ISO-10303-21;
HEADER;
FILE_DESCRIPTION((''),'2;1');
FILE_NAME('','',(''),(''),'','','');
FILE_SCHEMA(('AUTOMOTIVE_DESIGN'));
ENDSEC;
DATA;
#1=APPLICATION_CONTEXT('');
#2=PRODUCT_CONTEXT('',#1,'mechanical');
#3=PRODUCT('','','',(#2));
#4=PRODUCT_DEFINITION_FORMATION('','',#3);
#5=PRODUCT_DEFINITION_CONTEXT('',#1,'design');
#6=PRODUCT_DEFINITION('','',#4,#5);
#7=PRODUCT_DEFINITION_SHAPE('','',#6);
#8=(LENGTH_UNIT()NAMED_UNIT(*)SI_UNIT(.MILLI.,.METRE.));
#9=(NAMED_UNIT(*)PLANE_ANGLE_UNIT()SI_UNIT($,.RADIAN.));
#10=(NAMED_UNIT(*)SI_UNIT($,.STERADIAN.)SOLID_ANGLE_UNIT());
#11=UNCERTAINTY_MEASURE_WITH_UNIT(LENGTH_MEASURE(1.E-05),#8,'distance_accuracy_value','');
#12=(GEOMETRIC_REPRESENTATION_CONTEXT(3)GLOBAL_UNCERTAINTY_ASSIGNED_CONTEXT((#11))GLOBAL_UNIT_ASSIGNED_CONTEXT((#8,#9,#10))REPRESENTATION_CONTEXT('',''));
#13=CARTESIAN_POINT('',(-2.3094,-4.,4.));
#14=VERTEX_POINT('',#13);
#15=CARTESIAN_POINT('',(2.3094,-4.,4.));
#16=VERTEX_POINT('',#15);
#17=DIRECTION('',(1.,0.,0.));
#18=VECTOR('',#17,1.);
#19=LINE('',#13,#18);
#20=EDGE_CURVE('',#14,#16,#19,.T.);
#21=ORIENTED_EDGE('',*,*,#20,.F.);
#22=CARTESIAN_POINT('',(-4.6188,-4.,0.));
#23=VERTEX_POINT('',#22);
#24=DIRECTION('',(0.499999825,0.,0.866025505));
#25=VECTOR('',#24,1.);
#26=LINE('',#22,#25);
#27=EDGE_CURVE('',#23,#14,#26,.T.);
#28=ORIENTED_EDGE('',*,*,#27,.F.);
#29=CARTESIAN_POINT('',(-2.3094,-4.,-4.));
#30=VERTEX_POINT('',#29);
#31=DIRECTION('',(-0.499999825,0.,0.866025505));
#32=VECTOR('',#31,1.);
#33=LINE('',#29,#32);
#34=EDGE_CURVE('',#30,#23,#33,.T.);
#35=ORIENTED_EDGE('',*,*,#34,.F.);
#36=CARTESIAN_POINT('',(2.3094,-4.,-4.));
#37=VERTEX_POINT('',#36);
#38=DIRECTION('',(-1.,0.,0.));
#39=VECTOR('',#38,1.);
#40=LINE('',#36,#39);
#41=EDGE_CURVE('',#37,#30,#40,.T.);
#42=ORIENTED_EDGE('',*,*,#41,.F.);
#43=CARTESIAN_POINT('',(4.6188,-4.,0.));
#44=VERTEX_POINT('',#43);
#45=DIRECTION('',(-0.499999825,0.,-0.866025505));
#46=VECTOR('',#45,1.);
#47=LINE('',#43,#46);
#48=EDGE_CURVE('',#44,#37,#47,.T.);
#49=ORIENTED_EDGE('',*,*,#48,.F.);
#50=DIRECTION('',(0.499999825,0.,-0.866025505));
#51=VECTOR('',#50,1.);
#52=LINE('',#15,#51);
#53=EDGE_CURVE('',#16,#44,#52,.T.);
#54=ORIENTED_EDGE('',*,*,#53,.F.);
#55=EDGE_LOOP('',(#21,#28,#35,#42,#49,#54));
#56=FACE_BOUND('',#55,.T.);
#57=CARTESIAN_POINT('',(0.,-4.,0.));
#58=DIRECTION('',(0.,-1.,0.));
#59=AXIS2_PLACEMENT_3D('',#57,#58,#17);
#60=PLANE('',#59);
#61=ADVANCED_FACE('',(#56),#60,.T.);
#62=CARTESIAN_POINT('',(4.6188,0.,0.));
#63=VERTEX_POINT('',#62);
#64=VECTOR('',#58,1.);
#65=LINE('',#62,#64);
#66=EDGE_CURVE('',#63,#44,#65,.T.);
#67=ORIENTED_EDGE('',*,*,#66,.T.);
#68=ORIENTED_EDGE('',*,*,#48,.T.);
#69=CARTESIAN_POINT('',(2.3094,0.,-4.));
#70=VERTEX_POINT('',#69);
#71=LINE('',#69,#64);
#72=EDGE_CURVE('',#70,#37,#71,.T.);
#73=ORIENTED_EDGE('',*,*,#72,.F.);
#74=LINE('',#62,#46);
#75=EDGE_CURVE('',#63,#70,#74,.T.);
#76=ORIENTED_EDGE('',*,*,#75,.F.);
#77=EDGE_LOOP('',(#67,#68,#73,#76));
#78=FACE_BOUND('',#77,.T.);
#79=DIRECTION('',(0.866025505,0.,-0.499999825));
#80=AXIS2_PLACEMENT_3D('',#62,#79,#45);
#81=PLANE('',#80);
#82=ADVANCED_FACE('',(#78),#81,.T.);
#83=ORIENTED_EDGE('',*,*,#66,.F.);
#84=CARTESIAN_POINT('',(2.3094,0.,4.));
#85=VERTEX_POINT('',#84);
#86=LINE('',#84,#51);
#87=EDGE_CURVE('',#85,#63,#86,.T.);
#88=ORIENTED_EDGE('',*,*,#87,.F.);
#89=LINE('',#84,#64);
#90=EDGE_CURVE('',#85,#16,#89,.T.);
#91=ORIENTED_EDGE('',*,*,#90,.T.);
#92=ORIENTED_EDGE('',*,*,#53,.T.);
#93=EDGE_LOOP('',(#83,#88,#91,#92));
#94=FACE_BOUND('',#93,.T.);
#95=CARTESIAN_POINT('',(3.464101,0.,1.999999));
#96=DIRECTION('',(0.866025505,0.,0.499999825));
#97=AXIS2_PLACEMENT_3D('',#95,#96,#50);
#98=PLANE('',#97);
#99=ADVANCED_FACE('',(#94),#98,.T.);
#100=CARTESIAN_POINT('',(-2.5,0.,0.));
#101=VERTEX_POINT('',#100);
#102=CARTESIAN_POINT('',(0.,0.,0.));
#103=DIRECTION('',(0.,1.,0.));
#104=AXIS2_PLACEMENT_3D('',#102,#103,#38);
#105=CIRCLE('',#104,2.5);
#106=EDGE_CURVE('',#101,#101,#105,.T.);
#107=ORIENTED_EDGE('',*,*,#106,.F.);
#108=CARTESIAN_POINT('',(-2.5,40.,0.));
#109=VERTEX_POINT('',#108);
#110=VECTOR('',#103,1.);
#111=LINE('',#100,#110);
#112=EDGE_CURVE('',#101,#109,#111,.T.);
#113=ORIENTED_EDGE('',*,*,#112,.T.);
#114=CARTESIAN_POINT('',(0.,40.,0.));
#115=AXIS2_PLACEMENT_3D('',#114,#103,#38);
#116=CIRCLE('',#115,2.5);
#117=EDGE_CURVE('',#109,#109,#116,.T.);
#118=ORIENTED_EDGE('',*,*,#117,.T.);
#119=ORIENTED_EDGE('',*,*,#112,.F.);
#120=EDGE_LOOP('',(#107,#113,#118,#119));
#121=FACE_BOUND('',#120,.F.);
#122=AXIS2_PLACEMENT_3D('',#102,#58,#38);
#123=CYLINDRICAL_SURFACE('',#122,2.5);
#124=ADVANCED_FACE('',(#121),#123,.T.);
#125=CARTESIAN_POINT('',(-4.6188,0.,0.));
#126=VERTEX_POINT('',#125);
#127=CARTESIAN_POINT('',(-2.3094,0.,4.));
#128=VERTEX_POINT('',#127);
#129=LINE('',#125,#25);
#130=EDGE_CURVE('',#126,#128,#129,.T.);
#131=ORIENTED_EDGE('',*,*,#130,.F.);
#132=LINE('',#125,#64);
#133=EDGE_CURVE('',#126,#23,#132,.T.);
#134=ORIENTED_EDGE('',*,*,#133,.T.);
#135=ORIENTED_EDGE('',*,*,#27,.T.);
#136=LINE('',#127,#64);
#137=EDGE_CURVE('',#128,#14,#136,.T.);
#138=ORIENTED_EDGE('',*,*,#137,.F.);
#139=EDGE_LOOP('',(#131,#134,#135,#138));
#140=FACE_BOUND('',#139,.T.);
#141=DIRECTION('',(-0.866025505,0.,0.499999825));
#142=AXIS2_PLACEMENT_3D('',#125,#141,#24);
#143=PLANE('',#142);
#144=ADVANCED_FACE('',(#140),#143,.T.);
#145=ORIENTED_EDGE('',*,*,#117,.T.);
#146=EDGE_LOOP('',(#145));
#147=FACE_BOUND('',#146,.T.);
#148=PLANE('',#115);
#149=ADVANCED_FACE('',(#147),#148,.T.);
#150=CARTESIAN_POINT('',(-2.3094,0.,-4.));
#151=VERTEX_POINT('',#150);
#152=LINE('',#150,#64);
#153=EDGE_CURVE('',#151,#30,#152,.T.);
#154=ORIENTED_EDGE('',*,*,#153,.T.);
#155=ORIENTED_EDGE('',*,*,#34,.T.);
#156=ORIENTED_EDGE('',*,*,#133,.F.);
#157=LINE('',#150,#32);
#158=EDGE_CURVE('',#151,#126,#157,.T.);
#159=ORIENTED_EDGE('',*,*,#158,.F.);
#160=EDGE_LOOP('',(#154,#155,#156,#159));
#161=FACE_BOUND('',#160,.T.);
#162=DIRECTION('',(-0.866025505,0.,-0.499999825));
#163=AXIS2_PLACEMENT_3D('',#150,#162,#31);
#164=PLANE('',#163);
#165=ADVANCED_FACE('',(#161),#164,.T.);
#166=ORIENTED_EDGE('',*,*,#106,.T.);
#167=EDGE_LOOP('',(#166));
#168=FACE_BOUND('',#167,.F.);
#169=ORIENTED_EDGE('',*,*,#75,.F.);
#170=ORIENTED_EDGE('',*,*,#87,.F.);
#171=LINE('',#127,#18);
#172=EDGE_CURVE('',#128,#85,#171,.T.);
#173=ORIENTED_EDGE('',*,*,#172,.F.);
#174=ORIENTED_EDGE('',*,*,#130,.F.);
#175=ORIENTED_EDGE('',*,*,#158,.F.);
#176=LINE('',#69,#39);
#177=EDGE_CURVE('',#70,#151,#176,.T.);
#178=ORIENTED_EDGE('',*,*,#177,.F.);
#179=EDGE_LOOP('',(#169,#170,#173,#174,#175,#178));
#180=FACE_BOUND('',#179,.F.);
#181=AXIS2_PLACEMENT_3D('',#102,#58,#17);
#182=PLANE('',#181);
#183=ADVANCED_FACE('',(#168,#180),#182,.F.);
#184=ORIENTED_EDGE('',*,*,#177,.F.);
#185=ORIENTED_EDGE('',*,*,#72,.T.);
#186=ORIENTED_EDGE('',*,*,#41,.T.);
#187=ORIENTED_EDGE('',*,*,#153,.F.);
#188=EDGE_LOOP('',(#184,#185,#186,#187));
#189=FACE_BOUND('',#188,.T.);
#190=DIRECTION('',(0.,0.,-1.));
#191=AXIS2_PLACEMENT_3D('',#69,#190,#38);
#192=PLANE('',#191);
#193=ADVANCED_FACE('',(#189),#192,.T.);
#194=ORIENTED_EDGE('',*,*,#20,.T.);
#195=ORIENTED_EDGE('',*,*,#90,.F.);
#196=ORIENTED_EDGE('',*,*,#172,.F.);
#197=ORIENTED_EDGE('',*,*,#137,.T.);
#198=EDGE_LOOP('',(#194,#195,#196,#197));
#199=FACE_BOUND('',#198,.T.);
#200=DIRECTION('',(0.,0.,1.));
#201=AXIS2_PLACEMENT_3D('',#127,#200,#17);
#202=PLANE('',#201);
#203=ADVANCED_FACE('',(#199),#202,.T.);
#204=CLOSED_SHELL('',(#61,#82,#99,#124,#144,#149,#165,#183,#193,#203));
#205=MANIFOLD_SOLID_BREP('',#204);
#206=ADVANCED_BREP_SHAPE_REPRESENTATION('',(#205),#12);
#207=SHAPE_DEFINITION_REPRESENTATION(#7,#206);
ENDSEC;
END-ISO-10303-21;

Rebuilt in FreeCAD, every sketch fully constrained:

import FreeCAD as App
import Part
import Sketcher
from FreeCAD import Vector
Q = App.Units.Quantity

doc = App.newDocument("Part")
params = doc.addObject("Spreadsheet::Sheet", "Params")
for row, (alias, value) in enumerate([
    ("sketch1_diameter", "5 mm"),
    ("pad1_length", "40 mm"),
    ("pad2_length", "4 mm"),
], start=1):
    params.set(f"A{row}", alias)
    params.set(f"B{row}", "=" + value)
    params.setAlias(f"B{row}", alias)

body = doc.addObject("PartDesign::Body", "Body")

# Sketch on XZ plane
sketch1 = doc.addObject("Sketcher::SketchObject", "Sketch")
body.addObject(sketch1)
sketch1.AttachmentSupport = (doc.XZ_Plane, [""])
sketch1.MapMode = "FlatFace"
sketch1.addGeometry(Part.Circle(Vector(0, 0, 0), Vector(0, 0, 1), 2.5), False)
sketch1.addConstraint([
    Sketcher.Constraint("Coincident", 0, 3, -1, 1),
    Sketcher.Constraint("Diameter", 0, Q("5 mm")),
])
sketch1.setExpression("Constraints[1]", "Params.sketch1_diameter")
pad1 = doc.addObject("PartDesign::Pad", "Pad")
body.addObject(pad1)
pad1.Profile = sketch1
pad1.setExpression("Length", "Params.pad1_length")
pad1.Reversed = True

# Sketch on XZ plane
sketch2 = doc.addObject("Sketcher::SketchObject", "Sketch001")
body.addObject(sketch2)
sketch2.AttachmentSupport = (doc.XZ_Plane, [""])
sketch2.MapMode = "FlatFace"
sketch2.addGeometry([
    Part.LineSegment(Vector(4.6, 0, 0), Vector(2.3, 4, 0)),  # 0
    Part.LineSegment(Vector(2.3, 4, 0), Vector(-2.3, 4, 0)),  # 1
    Part.LineSegment(Vector(-2.3, 4, 0), Vector(-4.6, 0, 0)),  # 2
    Part.LineSegment(Vector(-4.6, 0, 0), Vector(-2.3, -4, 0)),  # 3
    Part.LineSegment(Vector(-2.3, -4, 0), Vector(2.3, -4, 0)),  # 4
    Part.LineSegment(Vector(2.3, -4, 0), Vector(4.6, 0, 0)),  # 5
], False)
sketch2.addConstraint([
    Sketcher.Constraint("Coincident", 0, 2, 1, 1),
    Sketcher.Constraint("Coincident", 1, 2, 2, 1),
    Sketcher.Constraint("Coincident", 2, 2, 3, 1),
    Sketcher.Constraint("Coincident", 3, 2, 4, 1),
    Sketcher.Constraint("Coincident", 4, 2, 5, 1),
    Sketcher.Constraint("Coincident", 5, 2, 0, 1),
    Sketcher.Constraint("Horizontal", 1),
    Sketcher.Constraint("Horizontal", 4),
    Sketcher.Constraint("Symmetric", 0, 2, 3, 2, -1, 1),
    Sketcher.Constraint("Symmetric", 2, 2, 5, 2, -1, 1),
    Sketcher.Constraint("PointOnObject", 2, 2, -1),
    Sketcher.Constraint("Parallel", 2, 5),
    Sketcher.Constraint("Vertical", 1, 2, 3, 2),
    Sketcher.Constraint("DistanceY", 3, 2, 1, 2, Q("8 mm")),
    Sketcher.Constraint("Angle", 0, Q("120 deg")),
    Sketcher.Constraint("DistanceX", 1, 2, 1, 1, Q("4.6188 mm")),
])
pad2 = doc.addObject("PartDesign::Pad", "Pad001")
body.addObject(pad2)
pad2.Profile = sketch2
pad2.setExpression("Length", "Params.pad2_length")

doc.recompute()
